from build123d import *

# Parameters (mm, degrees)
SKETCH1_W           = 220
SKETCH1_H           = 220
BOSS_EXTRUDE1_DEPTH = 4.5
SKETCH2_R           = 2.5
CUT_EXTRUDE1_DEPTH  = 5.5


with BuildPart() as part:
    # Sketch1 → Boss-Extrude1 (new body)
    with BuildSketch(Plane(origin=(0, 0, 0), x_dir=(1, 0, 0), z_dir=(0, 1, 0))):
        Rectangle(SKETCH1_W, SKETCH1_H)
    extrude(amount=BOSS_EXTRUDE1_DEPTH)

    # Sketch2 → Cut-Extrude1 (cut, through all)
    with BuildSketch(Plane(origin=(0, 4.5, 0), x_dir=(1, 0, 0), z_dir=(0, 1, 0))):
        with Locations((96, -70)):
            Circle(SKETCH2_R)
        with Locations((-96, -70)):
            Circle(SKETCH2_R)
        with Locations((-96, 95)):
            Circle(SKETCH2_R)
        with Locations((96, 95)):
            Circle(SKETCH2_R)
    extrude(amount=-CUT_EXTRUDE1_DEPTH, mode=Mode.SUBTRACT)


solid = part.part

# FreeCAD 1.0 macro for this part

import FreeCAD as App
import Part
import Sketcher


def add_polygon(sketch, points):
    """Adds a closed chain of lines whose ends are joined by coincident constraints."""
    first, n = sketch.GeometryCount, len(points)
    for a, b in zip(points, points[1:] + points[:1]):
        sketch.addGeometry(Part.LineSegment(App.Vector(*a, 0), App.Vector(*b, 0)), False)
    for i in range(n):
        sketch.addConstraint(Sketcher.Constraint("Coincident", first + i, 2, first + (i + 1) % n, 1))

doc = App.newDocument("Part")
params = doc.addObject("Spreadsheet::Sheet", "Params")
for row, (alias, value) in enumerate([
    ("sketch1_width", "220 mm"),
    ("pad1_length", "4.5 mm"),
    ("sketch2_diameter", "5 mm"),
], start=1):
    params.set(f"A{row}", alias)
    params.set(f"B{row}", "=" + value)
    params.setAlias(f"B{row}", alias)

body = doc.addObject("PartDesign::Body", "Body")

sketch1 = body.newObject("Sketcher::SketchObject", "Sketch")
sketch1.AttachmentSupport = (doc.getObject("XZ_Plane"), [""])
sketch1.MapMode = "FlatFace"
add_polygon(sketch1, [(-110, -110), (-110, 110), (110, 110), (110, -110)])
sketch1.addConstraint([
    Sketcher.Constraint("Vertical", 0),
    Sketcher.Constraint("Horizontal", 1),
    Sketcher.Constraint("Vertical", 2),
    Sketcher.Constraint("Horizontal", 3),
    Sketcher.Constraint("Symmetric", 0, 2, 2, 2, -1, 1),
    Sketcher.Constraint("Equal", 3, 0),
    Sketcher.Constraint("DistanceX", 1, 1, 1, 2, 220.0),
])
sketch1.setExpression("Constraints[10]", "Params.sketch1_width")
pad1 = body.newObject("PartDesign::Pad", "Pad")
pad1.Profile = sketch1
pad1.setExpression("Length", "Params.pad1_length")
pad1.Reversed = True

sketch2 = body.newObject("Sketcher::SketchObject", "Sketch001")
sketch2.AttachmentSupport = (doc.getObject("XZ_Plane"), [""])
sketch2.MapMode = "FlatFace"
sketch2.AttachmentOffset = App.Placement(App.Vector(0, 0, -4.5), App.Rotation())
sketch2.addGeometry([
    Part.Circle(App.Vector(96, 70, 0), App.Vector(0, 0, 1), 2.5),
    Part.Circle(App.Vector(-96, 70, 0), App.Vector(0, 0, 1), 2.5),
    Part.Circle(App.Vector(-96, -95, 0), App.Vector(0, 0, 1), 2.5),
    Part.Circle(App.Vector(96, -95, 0), App.Vector(0, 0, 1), 2.5),
], False)
sketch2.addConstraint([
    Sketcher.Constraint("Equal", 0, 1),
    Sketcher.Constraint("Equal", 1, 2),
    Sketcher.Constraint("Equal", 2, 3),
    Sketcher.Constraint("Symmetric", 0, 3, 1, 3, -2),
    Sketcher.Constraint("Symmetric", 2, 3, 3, 3, -2),
    Sketcher.Constraint("Vertical", 1, 3, 2, 3),
    Sketcher.Constraint("Diameter", 0, 5.0),
    Sketcher.Constraint("DistanceX", -1, 1, 0, 3, 96.0),
    Sketcher.Constraint("DistanceY", -1, 1, 0, 3, 70.0),
    Sketcher.Constraint("DistanceY", 2, 3, -1, 1, 95.0),
])
sketch2.setExpression("Constraints[6]", "Params.sketch2_diameter")
pocket1 = body.newObject("PartDesign::Pocket", "Pocket")
pocket1.Profile = sketch2
pocket1.Type = "ThroughAll"
pocket1.Reversed = True

doc.recompute()
